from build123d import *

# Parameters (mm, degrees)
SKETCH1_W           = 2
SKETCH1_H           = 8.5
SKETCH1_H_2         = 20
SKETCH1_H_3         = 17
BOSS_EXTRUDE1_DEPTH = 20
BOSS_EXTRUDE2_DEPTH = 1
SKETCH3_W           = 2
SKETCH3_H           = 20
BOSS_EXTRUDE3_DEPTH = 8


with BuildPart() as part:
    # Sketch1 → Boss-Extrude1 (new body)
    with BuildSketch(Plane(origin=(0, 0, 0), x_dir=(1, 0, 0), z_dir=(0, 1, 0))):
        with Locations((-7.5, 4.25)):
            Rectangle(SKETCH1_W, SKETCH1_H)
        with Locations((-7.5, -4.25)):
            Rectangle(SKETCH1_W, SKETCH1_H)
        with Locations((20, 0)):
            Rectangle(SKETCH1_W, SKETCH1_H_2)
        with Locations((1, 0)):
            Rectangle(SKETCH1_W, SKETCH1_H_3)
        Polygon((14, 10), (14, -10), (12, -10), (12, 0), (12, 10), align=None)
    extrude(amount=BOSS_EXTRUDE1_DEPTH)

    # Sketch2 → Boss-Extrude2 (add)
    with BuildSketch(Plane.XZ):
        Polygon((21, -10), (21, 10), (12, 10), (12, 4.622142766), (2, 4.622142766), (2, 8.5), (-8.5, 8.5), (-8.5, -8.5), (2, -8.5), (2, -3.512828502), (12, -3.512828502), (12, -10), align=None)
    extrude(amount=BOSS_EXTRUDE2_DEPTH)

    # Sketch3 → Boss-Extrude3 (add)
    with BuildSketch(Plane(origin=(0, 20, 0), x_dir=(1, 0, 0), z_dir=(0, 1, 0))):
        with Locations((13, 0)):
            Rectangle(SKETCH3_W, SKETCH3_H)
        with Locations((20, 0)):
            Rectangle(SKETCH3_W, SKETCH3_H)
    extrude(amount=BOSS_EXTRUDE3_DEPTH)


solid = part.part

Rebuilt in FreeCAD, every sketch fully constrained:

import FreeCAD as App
import Part
import Sketcher
Q = App.Units.Quantity


def add_polygon(sketch, points):
    """Adds a closed chain of lines whose ends are joined by coincident constraints."""
    first, n = sketch.GeometryCount, len(points)
    for a, b in zip(points, points[1:] + points[:1]):
        sketch.addGeometry(Part.LineSegment(App.Vector(*a, 0), App.Vector(*b, 0)), False)
    for i in range(n):
        sketch.addConstraint(Sketcher.Constraint("Coincident", first + i, 2, first + (i + 1) % n, 1))

doc = App.newDocument("Part")
body = doc.addObject("PartDesign::Body", "Body")
body.AllowCompound = True

# Sketch on XZ plane
sketch1 = doc.addObject("Sketcher::SketchObject", "Sketch")
body.addObject(sketch1)
sketch1.AttachmentSupport = (doc.XZ_Plane, [""])
sketch1.MapMode = "FlatFace"
add_polygon(sketch1, [(-8.5, -8.5), (-8.5, 8.5), (-6.5, 8.5), (-6.5, -8.5)])  # lines 0-3
add_polygon(sketch1, [(19, -10), (19, 10), (21, 10), (21, -10)])  # lines 4-7
add_polygon(sketch1, [(0, -8.5), (0, 8.5), (2, 8.5), (2, -8.5)])  # lines 8-11
add_polygon(sketch1, [(14, 10), (14, -10), (12, -10), (12, 10)])  # lines 12-15
sketch1.addConstraint(Sketcher.Constraint("Vertical", 0))
sketch1.addConstraint(Sketcher.Constraint("Horizontal", 1))
sketch1.addConstraint(Sketcher.Constraint("Vertical", 2))
sketch1.addConstraint(Sketcher.Constraint("Horizontal", 3))
sketch1.addConstraint(Sketcher.Constraint("Vertical", 4))
sketch1.addConstraint(Sketcher.Constraint("Horizontal", 5))
sketch1.addConstraint(Sketcher.Constraint("Vertical", 6))
sketch1.addConstraint(Sketcher.Constraint("Horizontal", 7))
sketch1.addConstraint(Sketcher.Constraint("Vertical", 8))
sketch1.addConstraint(Sketcher.Constraint("Horizontal", 9))
sketch1.addConstraint(Sketcher.Constraint("Vertical", 10))
sketch1.addConstraint(Sketcher.Constraint("Horizontal", 11))
sketch1.addConstraint(Sketcher.Constraint("Vertical", 12))
sketch1.addConstraint(Sketcher.Constraint("Horizontal", 13))
sketch1.addConstraint(Sketcher.Constraint("Vertical", 14))
sketch1.addConstraint(Sketcher.Constraint("Horizontal", 15))
sketch1.addConstraint(Sketcher.Constraint("Symmetric", 8, 2, 11, 2, -1, 1))
sketch1.addConstraint(Sketcher.Constraint("Horizontal", 1, 2, 8, 2))
sketch1.addConstraint(Sketcher.Constraint("Horizontal", 3, 2, 10, 2))
sketch1.addConstraint(Sketcher.Constraint("Horizontal", 7, 2, 12, 2))
sketch1.addConstraint(Sketcher.Constraint("Horizontal", 5, 2, 14, 2))
sketch1.addConstraint(Sketcher.Constraint("Equal", 3, 5))
sketch1.addConstraint(Sketcher.Constraint("Equal", 7, 9))
sketch1.addConstraint(Sketcher.Constraint("Equal", 11, 13))
sketch1.addConstraint(Sketcher.Constraint("DistanceX", 1, 1, 1, 2, Q("2 mm")))
sketch1.addConstraint(Sketcher.Constraint("DistanceY", 0, 1, 0, 2, Q("17 mm")))
sketch1.addConstraint(Sketcher.Constraint("DistanceY", 4, 1, 4, 2, Q("20 mm")))
sketch1.addConstraint(Sketcher.Constraint("DistanceX", -1, 1, 4, 2, Q("19 mm")))
sketch1.addConstraint(Sketcher.Constraint("DistanceY", -1, 1, 4, 2, Q("10 mm")))
sketch1.addConstraint(Sketcher.Constraint("DistanceX", -1, 1, 12, 2, Q("14 mm")))
sketch1.addConstraint(Sketcher.Constraint("DistanceX", 0, 2, -1, 1, Q("8.5 mm")))
pad1 = doc.addObject("PartDesign::Pad", "Pad")
body.addObject(pad1)
pad1.Profile = sketch1
pad1.Length = 20
pad1.Reversed = True

# Sketch on XZ plane
sketch2 = doc.addObject("Sketcher::SketchObject", "Sketch001")
body.addObject(sketch2)
sketch2.AttachmentSupport = (doc.XZ_Plane, [""])
sketch2.MapMode = "FlatFace"
add_polygon(sketch2, [(21, -10), (21, 10), (12, 10), (12, 4.6), (2, 4.6), (2, 8.5), (-8.5, 8.5), (-8.5, -8.5), (2, -8.5), (2, -3.5), (12, -3.5), (12, -10)])  # lines 0-11
sketch2.addConstraint(Sketcher.Constraint("Vertical", 0))
sketch2.addConstraint(Sketcher.Constraint("Horizontal", 1))
sketch2.addConstraint(Sketcher.Constraint("Vertical", 2))
sketch2.addConstraint(Sketcher.Constraint("Horizontal", 3))
sketch2.addConstraint(Sketcher.Constraint("Vertical", 4))
sketch2.addConstraint(Sketcher.Constraint("Horizontal", 5))
sketch2.addConstraint(Sketcher.Constraint("Vertical", 6))
sketch2.addConstraint(Sketcher.Constraint("Horizontal", 7))
sketch2.addConstraint(Sketcher.Constraint("Vertical", 8))
sketch2.addConstraint(Sketcher.Constraint("Horizontal", 9))
sketch2.addConstraint(Sketcher.Constraint("Vertical", 10))
sketch2.addConstraint(Sketcher.Constraint("Horizontal", 11))
sketch2.addConstraint(Sketcher.Constraint("Symmetric", 4, 2, 7, 2, -1))
sketch2.addConstraint(Sketcher.Constraint("Symmetric", 1, 2, 10, 2, -1))
sketch2.addConstraint(Sketcher.Constraint("DistanceX", 1, 2, 1, 1, Q("9 mm")))
sketch2.addConstraint(Sketcher.Constraint("DistanceX", 3, 2, 3, 1, Q("10 mm")))
sketch2.addConstraint(Sketcher.Constraint("DistanceY", 0, 1, 0, 2, Q("20 mm")))
sketch2.addConstraint(Sketcher.Constraint("DistanceY", 6, 2, 6, 1, Q("17 mm")))
sketch2.addConstraint(Sketcher.Constraint("DistanceX", 5, 2, 5, 1, Q("10.5 mm")))
sketch2.addConstraint(Sketcher.Constraint("DistanceX", -1, 1, 0, 2, Q("21 mm")))
sketch2.addConstraint(Sketcher.Constraint("DistanceY", 8, 1, 8, 2, Q("4.987171 mm")))
sketch2.addConstraint(Sketcher.Constraint("DistanceY", 2, 2, 2, 1, Q("5.377857 mm")))
pad2 = doc.addObject("PartDesign::Pad", "Pad001")
body.addObject(pad2)
pad2.Profile = sketch2
pad2.Length = 1

# Sketch on XZ plane
sketch3 = doc.addObject("Sketcher::SketchObject", "Sketch002")
body.addObject(sketch3)
sketch3.AttachmentSupport = (doc.XZ_Plane, [""])
sketch3.MapMode = "FlatFace"
sketch3.AttachmentOffset = App.Placement(App.Vector(0, 0, -20), App.Rotation())
add_polygon(sketch3, [(12, -10), (12, 10), (14, 10), (14, -10)])  # lines 0-3
add_polygon(sketch3, [(19, -10), (19, 10), (21, 10), (21, -10)])  # lines 4-7
sketch3.addConstraint(Sketcher.Constraint("Vertical", 0))
sketch3.addConstraint(Sketcher.Constraint("Horizontal", 1))
sketch3.addConstraint(Sketcher.Constraint("Vertical", 2))
sketch3.addConstraint(Sketcher.Constraint("Horizontal", 3))
sketch3.addConstraint(Sketcher.Constraint("Vertical", 4))
sketch3.addConstraint(Sketcher.Constraint("Horizontal", 5))
sketch3.addConstraint(Sketcher.Constraint("Vertical", 6))
sketch3.addConstraint(Sketcher.Constraint("Horizontal", 7))
sketch3.addConstraint(Sketcher.Constraint("Horizontal", 1, 2, 4, 2))
sketch3.addConstraint(Sketcher.Constraint("Horizontal", 3, 2, 6, 2))
sketch3.addConstraint(Sketcher.Constraint("Equal", 3, 5))
sketch3.addConstraint(Sketcher.Constraint("DistanceX", 1, 1, 1, 2, Q("2 mm")))
sketch3.addConstraint(Sketcher.Constraint("DistanceY", 0, 1, 0, 2, Q("20 mm")))
sketch3.addConstraint(Sketcher.Constraint("DistanceX", -1, 1, 0, 2, Q("12 mm")))
sketch3.addConstraint(Sketcher.Constraint("DistanceY", -1, 1, 0, 2, Q("10 mm")))
sketch3.addConstraint(Sketcher.Constraint("DistanceX", -1, 1, 4, 2, Q("19 mm")))
pad3 = doc.addObject("PartDesign::Pad", "Pad002")
body.addObject(pad3)
pad3.Profile = sketch3
pad3.Length = 8
pad3.Reversed = True

doc.recompute()
